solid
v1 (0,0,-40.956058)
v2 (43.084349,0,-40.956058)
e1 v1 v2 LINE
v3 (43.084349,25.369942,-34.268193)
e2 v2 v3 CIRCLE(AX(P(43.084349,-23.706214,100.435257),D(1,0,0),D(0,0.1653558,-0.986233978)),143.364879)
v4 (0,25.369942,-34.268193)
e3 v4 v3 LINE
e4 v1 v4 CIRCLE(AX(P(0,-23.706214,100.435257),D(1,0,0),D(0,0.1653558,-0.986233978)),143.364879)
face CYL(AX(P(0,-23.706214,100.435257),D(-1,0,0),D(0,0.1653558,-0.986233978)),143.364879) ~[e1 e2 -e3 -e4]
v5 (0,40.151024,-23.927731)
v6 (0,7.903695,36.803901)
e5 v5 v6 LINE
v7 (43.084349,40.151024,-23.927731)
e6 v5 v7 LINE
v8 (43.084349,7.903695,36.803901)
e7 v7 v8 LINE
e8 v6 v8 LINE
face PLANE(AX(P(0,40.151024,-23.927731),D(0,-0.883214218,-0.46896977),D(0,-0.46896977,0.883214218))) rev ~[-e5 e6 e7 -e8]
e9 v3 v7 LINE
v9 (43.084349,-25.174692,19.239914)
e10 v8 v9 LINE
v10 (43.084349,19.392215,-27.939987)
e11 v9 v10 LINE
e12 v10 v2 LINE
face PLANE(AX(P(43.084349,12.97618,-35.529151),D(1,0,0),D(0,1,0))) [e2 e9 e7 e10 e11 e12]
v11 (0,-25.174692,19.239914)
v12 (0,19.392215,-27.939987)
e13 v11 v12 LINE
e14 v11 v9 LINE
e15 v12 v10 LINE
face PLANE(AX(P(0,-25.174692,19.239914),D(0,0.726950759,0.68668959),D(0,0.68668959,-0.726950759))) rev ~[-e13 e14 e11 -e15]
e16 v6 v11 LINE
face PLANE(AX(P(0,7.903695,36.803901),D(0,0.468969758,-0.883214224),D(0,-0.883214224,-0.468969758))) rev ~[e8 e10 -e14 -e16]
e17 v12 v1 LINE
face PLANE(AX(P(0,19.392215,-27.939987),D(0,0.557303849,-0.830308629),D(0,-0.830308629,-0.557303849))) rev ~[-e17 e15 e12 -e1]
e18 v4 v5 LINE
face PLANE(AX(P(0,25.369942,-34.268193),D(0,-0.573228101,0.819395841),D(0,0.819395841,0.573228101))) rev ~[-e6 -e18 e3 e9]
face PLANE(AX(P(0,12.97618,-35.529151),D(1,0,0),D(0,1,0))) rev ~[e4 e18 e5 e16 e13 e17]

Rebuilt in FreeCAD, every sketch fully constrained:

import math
import FreeCAD as App
import Part
import Sketcher
from FreeCAD import Vector

doc = App.newDocument("Part")
params = doc.addObject("Spreadsheet::Sheet", "Params")
for row, (alias, value) in enumerate([
    ("pad1_length", "43.084349 mm"),
], start=1):
    params.set(f"A{row}", alias)
    params.set(f"B{row}", "=" + value)
    params.setAlias(f"B{row}", alias)

body = doc.addObject("PartDesign::Body", "Body")

# Sketch on YZ plane
sketch1 = doc.addObject("Sketcher::SketchObject", "Sketch")
body.addObject(sketch1)
sketch1.AttachmentSupport = (doc.YZ_Plane, [""])
sketch1.MapMode = "FlatFace"
sketch1.addGeometry([
    Part.LineSegment(Vector(-25, 19, 0), Vector(19, -28, 0)),  # 0
    Part.LineSegment(Vector(19, -28, 0), Vector(0, -41, 0)),  # 1
    Part.ArcOfCircle(Part.Circle(Vector(-24, 100, 0), Vector(0, 0, 1), 143), math.radians(-80.48), math.radians(-69.98)),  # 2
    Part.LineSegment(Vector(25, -34, 0), Vector(40, -24, 0)),  # 3
    Part.LineSegment(Vector(40, -24, 0), Vector(8, 37, 0)),  # 4
    Part.LineSegment(Vector(8, 37, 0), Vector(-25, 19, 0)),  # 5
], False)
sketch1.addConstraint([
    Sketcher.Constraint("Coincident", 0, 2, 1, 1),
    Sketcher.Constraint("Coincident", 1, 2, 2, 1),
    Sketcher.Constraint("Coincident", 2, 2, 3, 1),
    Sketcher.Constraint("Coincident", 3, 2, 4, 1),
    Sketcher.Constraint("Coincident", 4, 2, 5, 1),
    Sketcher.Constraint("Coincident", 5, 2, 0, 1),
    Sketcher.Constraint("PointOnObject", 1, 2, -2),
    Sketcher.Constraint("Perpendicular", 4, 5),
    Sketcher.Constraint("Radius", 2, 143.364879),
    Sketcher.Constraint("Distance", 3, 18.039001),
    Sketcher.Constraint("DistanceY", -1, 1, 4, 2, 36.803901),
    Sketcher.Constraint("DistanceY", 0, 2, 5, 2, 47.179901),
    Sketcher.Constraint("Distance", 1, 23.35543),
    Sketcher.Constraint("Distance", 5, 37.452281),
    Sketcher.Constraint("DistanceY", 3, 2, -1, 1, 23.927731),
    Sketcher.Constraint("DistanceX", 2, 3, 0, 2, 43.098429),
    Sketcher.Constraint("DistanceY", 1, 2, 0, 2, 13.016071),
    Sketcher.Constraint("DistanceY", 2, 2, 2, 3, 134.70345),
    Sketcher.Constraint("DistanceX", 0, 2, 3, 2, 20.758809),
])
pad1 = doc.addObject("PartDesign::Pad", "Pad")
body.addObject(pad1)
pad1.Profile = sketch1
pad1.setExpression("Length", "Params.pad1_length")

doc.recompute()
